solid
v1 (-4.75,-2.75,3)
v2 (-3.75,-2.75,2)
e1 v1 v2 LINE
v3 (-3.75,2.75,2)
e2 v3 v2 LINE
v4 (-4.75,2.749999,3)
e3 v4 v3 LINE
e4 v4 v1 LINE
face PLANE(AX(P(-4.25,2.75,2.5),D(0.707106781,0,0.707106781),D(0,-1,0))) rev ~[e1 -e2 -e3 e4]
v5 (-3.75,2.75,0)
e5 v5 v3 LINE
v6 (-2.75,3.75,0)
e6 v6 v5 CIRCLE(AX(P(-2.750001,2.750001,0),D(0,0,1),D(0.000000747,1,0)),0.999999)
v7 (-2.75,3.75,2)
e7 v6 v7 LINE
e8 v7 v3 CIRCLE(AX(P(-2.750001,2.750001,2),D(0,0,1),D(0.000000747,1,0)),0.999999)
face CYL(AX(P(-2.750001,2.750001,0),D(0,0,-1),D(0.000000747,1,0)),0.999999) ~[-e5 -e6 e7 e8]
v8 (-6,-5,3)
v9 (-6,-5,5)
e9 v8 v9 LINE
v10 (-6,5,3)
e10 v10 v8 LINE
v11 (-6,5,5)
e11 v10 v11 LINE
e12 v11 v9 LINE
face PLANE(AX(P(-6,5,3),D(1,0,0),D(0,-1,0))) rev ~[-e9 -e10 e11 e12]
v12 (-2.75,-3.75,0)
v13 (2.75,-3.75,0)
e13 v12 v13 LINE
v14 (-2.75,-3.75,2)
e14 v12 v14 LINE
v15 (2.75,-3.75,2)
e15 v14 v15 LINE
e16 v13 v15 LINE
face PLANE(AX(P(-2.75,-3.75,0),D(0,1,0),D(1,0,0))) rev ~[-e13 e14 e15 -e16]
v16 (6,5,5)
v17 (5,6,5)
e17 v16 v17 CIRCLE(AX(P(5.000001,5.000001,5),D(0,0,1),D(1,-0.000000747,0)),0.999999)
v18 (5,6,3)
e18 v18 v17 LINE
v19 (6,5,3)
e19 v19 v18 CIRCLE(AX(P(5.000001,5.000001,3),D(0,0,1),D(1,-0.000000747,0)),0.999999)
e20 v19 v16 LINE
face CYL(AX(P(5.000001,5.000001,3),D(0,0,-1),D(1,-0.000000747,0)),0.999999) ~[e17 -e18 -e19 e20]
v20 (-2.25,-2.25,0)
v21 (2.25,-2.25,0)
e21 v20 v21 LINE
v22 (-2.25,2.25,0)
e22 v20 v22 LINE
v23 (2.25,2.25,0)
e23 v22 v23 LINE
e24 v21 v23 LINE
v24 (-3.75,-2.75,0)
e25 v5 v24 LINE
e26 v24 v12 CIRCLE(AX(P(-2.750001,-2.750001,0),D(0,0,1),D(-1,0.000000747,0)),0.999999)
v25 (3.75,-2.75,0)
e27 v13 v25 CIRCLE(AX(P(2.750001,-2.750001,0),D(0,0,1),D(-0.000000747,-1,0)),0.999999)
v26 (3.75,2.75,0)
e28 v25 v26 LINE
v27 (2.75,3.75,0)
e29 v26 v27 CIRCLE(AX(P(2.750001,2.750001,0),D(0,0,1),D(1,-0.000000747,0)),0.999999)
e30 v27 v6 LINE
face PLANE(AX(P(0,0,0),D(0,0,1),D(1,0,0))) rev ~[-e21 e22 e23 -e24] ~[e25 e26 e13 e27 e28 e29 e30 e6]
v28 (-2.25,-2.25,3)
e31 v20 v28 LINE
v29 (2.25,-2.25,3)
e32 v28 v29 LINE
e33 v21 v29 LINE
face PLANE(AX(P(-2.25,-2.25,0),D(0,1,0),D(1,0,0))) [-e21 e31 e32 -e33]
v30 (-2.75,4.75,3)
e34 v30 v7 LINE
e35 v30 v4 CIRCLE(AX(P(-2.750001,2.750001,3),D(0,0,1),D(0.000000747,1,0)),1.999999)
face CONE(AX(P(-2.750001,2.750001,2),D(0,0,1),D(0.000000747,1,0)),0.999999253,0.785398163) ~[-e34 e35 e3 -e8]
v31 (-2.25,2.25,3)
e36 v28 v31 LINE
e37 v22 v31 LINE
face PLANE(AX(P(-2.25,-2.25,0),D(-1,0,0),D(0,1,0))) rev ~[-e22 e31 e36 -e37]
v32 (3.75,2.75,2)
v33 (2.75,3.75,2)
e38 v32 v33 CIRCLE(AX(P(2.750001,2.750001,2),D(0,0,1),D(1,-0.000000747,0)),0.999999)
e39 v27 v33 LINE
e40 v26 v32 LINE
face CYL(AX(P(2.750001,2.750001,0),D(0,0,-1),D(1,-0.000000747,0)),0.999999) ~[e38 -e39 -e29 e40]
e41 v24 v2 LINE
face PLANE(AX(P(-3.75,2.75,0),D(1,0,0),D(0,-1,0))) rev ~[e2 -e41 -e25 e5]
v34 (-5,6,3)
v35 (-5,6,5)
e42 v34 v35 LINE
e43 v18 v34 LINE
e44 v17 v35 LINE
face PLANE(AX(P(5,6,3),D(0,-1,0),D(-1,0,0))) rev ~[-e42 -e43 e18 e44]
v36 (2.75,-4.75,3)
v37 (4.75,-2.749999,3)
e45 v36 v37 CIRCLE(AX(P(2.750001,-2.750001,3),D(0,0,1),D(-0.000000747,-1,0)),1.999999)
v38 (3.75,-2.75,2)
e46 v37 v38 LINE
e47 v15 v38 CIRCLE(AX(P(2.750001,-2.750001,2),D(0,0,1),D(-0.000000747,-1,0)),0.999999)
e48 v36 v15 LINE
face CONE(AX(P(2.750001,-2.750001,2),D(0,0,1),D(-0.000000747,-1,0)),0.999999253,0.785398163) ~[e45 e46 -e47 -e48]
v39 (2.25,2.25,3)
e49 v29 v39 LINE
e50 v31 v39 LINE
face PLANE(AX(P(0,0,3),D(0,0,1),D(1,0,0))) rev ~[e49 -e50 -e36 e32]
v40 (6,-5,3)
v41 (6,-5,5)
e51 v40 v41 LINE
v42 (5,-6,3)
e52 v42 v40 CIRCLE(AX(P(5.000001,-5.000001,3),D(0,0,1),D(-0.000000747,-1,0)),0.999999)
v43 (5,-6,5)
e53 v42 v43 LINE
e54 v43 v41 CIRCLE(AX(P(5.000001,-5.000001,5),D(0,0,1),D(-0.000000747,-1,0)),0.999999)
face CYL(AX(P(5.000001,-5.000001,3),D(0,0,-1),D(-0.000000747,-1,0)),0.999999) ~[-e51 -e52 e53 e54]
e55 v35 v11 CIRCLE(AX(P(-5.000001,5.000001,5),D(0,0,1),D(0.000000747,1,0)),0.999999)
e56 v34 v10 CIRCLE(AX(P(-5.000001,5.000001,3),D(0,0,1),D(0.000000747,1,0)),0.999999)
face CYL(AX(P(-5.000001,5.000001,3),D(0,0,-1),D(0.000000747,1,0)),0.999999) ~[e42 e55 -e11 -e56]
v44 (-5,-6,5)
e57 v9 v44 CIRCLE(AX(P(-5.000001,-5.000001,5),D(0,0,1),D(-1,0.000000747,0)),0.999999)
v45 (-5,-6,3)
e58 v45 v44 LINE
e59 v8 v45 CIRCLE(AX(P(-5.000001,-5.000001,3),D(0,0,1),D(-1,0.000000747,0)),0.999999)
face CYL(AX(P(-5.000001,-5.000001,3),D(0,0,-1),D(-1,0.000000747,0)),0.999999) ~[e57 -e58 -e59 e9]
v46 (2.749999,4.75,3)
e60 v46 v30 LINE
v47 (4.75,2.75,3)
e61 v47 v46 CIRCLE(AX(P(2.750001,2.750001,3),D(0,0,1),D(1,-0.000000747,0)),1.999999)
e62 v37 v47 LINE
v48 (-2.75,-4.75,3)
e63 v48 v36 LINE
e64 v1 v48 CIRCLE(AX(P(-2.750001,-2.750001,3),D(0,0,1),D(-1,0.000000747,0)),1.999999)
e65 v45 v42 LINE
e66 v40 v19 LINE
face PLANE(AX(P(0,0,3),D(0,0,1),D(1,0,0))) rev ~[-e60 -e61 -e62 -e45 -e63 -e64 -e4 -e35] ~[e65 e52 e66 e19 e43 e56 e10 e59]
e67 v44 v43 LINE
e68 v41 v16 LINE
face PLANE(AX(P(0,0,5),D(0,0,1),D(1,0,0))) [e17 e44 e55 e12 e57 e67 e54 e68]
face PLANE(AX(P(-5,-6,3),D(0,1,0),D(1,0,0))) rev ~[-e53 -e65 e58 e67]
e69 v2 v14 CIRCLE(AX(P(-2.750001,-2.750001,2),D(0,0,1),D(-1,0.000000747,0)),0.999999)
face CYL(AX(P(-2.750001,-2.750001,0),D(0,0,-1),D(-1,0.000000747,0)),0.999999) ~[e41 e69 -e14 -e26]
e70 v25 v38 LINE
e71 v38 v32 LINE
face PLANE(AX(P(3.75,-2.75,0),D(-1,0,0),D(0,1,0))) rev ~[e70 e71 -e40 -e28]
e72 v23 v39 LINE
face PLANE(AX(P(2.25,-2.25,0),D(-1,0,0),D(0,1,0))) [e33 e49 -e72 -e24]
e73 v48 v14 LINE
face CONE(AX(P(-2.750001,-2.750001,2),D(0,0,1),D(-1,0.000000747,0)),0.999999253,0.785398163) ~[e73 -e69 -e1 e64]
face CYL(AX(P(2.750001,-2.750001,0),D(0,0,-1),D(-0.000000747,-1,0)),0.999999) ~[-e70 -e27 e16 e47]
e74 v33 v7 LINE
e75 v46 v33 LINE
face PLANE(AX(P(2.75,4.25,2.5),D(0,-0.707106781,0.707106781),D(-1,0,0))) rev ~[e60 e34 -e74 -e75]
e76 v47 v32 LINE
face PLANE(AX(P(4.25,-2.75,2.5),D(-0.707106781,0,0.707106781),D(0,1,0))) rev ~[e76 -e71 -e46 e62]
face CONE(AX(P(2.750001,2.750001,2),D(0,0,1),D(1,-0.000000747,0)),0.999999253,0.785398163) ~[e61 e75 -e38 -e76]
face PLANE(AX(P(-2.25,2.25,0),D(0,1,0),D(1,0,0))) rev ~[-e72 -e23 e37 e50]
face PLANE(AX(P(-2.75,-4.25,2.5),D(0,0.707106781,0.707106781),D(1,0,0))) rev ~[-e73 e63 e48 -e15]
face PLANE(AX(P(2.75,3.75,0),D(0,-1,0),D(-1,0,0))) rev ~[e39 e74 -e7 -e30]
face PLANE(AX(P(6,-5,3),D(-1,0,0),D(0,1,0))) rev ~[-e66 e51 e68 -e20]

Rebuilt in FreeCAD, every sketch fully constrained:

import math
import FreeCAD as App
import Part
import Sketcher


def edges_at(feature, points):
    """Names of the edges that pass closest to the given points."""
    edges = feature.Shape.Edges
    near = lambda p: min(range(len(edges)), key=lambda i: edges[i].distToShape(Part.Vertex(*p))[0])
    return sorted({f"Edge{near(p) + 1}" for p in points})

doc = App.newDocument("Part")
body = doc.addObject("PartDesign::Body", "Body")

# Sketch on XY plane
sketch1 = body.newObject("Sketcher::SketchObject", "Sketch")
sketch1.AttachmentSupport = (doc.getObject("XY_Plane"), [""])
sketch1.MapMode = "FlatFace"
sketch1.addGeometry(Part.LineSegment(App.Vector(-2.8, -3.8, 0), App.Vector(2.8, -3.8, 0)), False)
sketch1.addGeometry(Part.ArcOfCircle(Part.Circle(App.Vector(2.8, -2.8, 0), App.Vector(0, 0, 1), 1), math.radians(-90), math.radians(0)), False)
sketch1.addGeometry(Part.LineSegment(App.Vector(3.8, -2.8, 0), App.Vector(3.8, 2.8, 0)), False)
sketch1.addGeometry(Part.ArcOfCircle(Part.Circle(App.Vector(2.8, 2.8, 0), App.Vector(0, 0, 1), 1), math.radians(0), math.radians(90)), False)
sketch1.addGeometry(Part.LineSegment(App.Vector(2.8, 3.8, 0), App.Vector(-2.8, 3.8, 0)), False)
sketch1.addGeometry(Part.ArcOfCircle(Part.Circle(App.Vector(-2.8, 2.8, 0), App.Vector(0, 0, 1), 1), math.radians(90), math.radians(180)), False)
sketch1.addGeometry(Part.LineSegment(App.Vector(-3.8, 2.8, 0), App.Vector(-3.8, -2.8, 0)), False)
sketch1.addGeometry(Part.ArcOfCircle(Part.Circle(App.Vector(-2.8, -2.8, 0), App.Vector(0, 0, 1), 1), math.radians(180), math.radians(270)), False)
sketch1.addGeometry(Part.LineSegment(App.Vector(2.2, -2.2, 0), App.Vector(-2.2, -2.2, 0)), False)
sketch1.addGeometry(Part.LineSegment(App.Vector(-2.2, -2.2, 0), App.Vector(-2.2, 2.2, 0)), False)
sketch1.addGeometry(Part.LineSegment(App.Vector(-2.2, 2.2, 0), App.Vector(2.2, 2.2, 0)), False)
sketch1.addGeometry(Part.LineSegment(App.Vector(2.2, 2.2, 0), App.Vector(2.2, -2.2, 0)), False)
sketch1.addConstraint(Sketcher.Constraint("Tangent", 0, 2, 1, 1))
sketch1.addConstraint(Sketcher.Constraint("Tangent", 1, 2, 2, 1))
sketch1.addConstraint(Sketcher.Constraint("Tangent", 2, 2, 3, 1))
sketch1.addConstraint(Sketcher.Constraint("Tangent", 3, 2, 4, 1))
sketch1.addConstraint(Sketcher.Constraint("Tangent", 4, 2, 5, 1))
sketch1.addConstraint(Sketcher.Constraint("Tangent", 5, 2, 6, 1))
sketch1.addConstraint(Sketcher.Constraint("Tangent", 6, 2, 7, 1))
sketch1.addConstraint(Sketcher.Constraint("Tangent", 7, 2, 0, 1))
sketch1.addConstraint(Sketcher.Constraint("Coincident", 8, 2, 9, 1))
sketch1.addConstraint(Sketcher.Constraint("Coincident", 9, 2, 10, 1))
sketch1.addConstraint(Sketcher.Constraint("Coincident", 10, 2, 11, 1))
sketch1.addConstraint(Sketcher.Constraint("Coincident", 11, 2, 8, 1))
sketch1.addConstraint(Sketcher.Constraint("Horizontal", 0))
sketch1.addConstraint(Sketcher.Constraint("Vertical", 2))
sketch1.addConstraint(Sketcher.Constraint("Horizontal", 4))
sketch1.addConstraint(Sketcher.Constraint("Vertical", 6))
sketch1.addConstraint(Sketcher.Constraint("Horizontal", 8))
sketch1.addConstraint(Sketcher.Constraint("Vertical", 9))
sketch1.addConstraint(Sketcher.Constraint("Horizontal", 10))
sketch1.addConstraint(Sketcher.Constraint("Vertical", 11))
sketch1.addConstraint(Sketcher.Constraint("Equal", 1, 3))
sketch1.addConstraint(Sketcher.Constraint("Equal", 3, 5))
sketch1.addConstraint(Sketcher.Constraint("Equal", 5, 7))
sketch1.addConstraint(Sketcher.Constraint("Symmetric", 1, 3, 5, 3, -1, 1))
sketch1.addConstraint(Sketcher.Constraint("Symmetric", 8, 2, 10, 2, -1, 1))
sketch1.addConstraint(Sketcher.Constraint("Equal", 4, 2))
sketch1.addConstraint(Sketcher.Constraint("Equal", 10, 9))
sketch1.addConstraint(Sketcher.Constraint("Radius", 1, 0.999999))
sketch1.addConstraint(Sketcher.Constraint("DistanceX", 0, 1, 0, 2, 5.5))
sketch1.addConstraint(Sketcher.Constraint("DistanceX", 8, 2, 8, 1, 4.5))
pad1 = body.newObject("PartDesign::Pad", "Pad")
pad1.Profile = sketch1
pad1.Length = 3

# Sketch on XY plane
sketch2 = body.newObject("Sketcher::SketchObject", "Sketch001")
sketch2.AttachmentSupport = (doc.getObject("XY_Plane"), [""])
sketch2.MapMode = "FlatFace"
sketch2.AttachmentOffset = App.Placement(App.Vector(0, 0, 3), App.Rotation())
sketch2.addGeometry(Part.ArcOfCircle(Part.Circle(App.Vector(5, 5, 0), App.Vector(0, 0, 1), 1), math.radians(0), math.radians(90)), False)
sketch2.addGeometry(Part.LineSegment(App.Vector(5, 6, 0), App.Vector(-5, 6, 0)), False)
sketch2.addGeometry(Part.ArcOfCircle(Part.Circle(App.Vector(-5, 5, 0), App.Vector(0, 0, 1), 1), math.radians(90), math.radians(180)), False)
sketch2.addGeometry(Part.LineSegment(App.Vector(-6, 5, 0), App.Vector(-6, -5, 0)), False)
sketch2.addGeometry(Part.ArcOfCircle(Part.Circle(App.Vector(-5, -5, 0), App.Vector(0, 0, 1), 1), math.radians(180), math.radians(270)), False)
sketch2.addGeometry(Part.LineSegment(App.Vector(-5, -6, 0), App.Vector(5, -6, 0)), False)
sketch2.addGeometry(Part.ArcOfCircle(Part.Circle(App.Vector(5, -5, 0), App.Vector(0, 0, 1), 1), math.radians(-90), math.radians(0)), False)
sketch2.addGeometry(Part.LineSegment(App.Vector(6, -5, 0), App.Vector(6, 5, 0)), False)
sketch2.addConstraint(Sketcher.Constraint("Tangent", 0, 2, 1, 1))
sketch2.addConstraint(Sketcher.Constraint("Tangent", 1, 2, 2, 1))
sketch2.addConstraint(Sketcher.Constraint("Tangent", 2, 2, 3, 1))
sketch2.addConstraint(Sketcher.Constraint("Tangent", 3, 2, 4, 1))
sketch2.addConstraint(Sketcher.Constraint("Tangent", 4, 2, 5, 1))
sketch2.addConstraint(Sketcher.Constraint("Tangent", 5, 2, 6, 1))
sketch2.addConstraint(Sketcher.Constraint("Tangent", 6, 2, 7, 1))
sketch2.addConstraint(Sketcher.Constraint("Tangent", 7, 2, 0, 1))
sketch2.addConstraint(Sketcher.Constraint("Horizontal", 1))
sketch2.addConstraint(Sketcher.Constraint("Vertical", 3))
sketch2.addConstraint(Sketcher.Constraint("Horizontal", 5))
sketch2.addConstraint(Sketcher.Constraint("Vertical", 7))
sketch2.addConstraint(Sketcher.Constraint("Equal", 0, 2))
sketch2.addConstraint(Sketcher.Constraint("Equal", 2, 4))
sketch2.addConstraint(Sketcher.Constraint("Equal", 4, 6))
sketch2.addConstraint(Sketcher.Constraint("Symmetric", 0, 3, 4, 3, -1, 1))
sketch2.addConstraint(Sketcher.Constraint("Equal", 5, 3))
sketch2.addConstraint(Sketcher.Constraint("Radius", 0, 0.999999))
sketch2.addConstraint(Sketcher.Constraint("DistanceX", 1, 2, 1, 1, 10.0))
pad2 = body.newObject("PartDesign::Pad", "Pad001")
pad2.Profile = sketch2
pad2.Length = 2
doc.recompute()

chamfer = body.newObject("PartDesign::Chamfer", "Chamfer")
chamfer.Base = (pad2, edges_at(pad2, [(0, -3.75, 3)]))
chamfer.Size = 1

doc.recompute()
